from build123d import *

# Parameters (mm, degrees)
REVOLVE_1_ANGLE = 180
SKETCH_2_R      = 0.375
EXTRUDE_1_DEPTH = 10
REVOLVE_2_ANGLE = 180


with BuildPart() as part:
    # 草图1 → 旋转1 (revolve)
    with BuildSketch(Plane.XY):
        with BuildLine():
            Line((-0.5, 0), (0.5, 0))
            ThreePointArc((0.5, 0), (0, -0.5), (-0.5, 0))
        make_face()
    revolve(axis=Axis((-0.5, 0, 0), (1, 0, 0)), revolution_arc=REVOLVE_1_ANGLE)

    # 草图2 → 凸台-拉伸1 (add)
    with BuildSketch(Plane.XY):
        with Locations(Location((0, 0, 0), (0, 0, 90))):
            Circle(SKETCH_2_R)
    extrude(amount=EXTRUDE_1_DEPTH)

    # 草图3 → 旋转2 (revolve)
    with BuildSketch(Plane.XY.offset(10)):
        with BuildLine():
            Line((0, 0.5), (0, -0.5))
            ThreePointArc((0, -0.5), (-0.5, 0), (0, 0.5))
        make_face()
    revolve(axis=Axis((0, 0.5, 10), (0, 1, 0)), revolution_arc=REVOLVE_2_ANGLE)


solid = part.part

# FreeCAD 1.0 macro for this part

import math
import FreeCAD as App
import Part
import Sketcher
from FreeCAD import Vector

doc = App.newDocument("Part")
params = doc.addObject("Spreadsheet::Sheet", "Params")
for row, (alias, value) in enumerate([
    ("sketch1_radius", "0.5 mm"),
    ("revolution_angle", "180 deg"),
    ("sketch2_diameter", "0.75 mm"),
    ("pad1_length", "10 mm"),
    ("sketch3_radius", "0.5 mm"),
    ("revolution2_angle", "180 deg"),
], start=1):
    params.set(f"A{row}", alias)
    params.set(f"B{row}", "=" + value)
    params.setAlias(f"B{row}", alias)

body = doc.addObject("PartDesign::Body", "Body")

# Sketch on XY plane
sketch1 = doc.addObject("Sketcher::SketchObject", "Sketch")
body.addObject(sketch1)
sketch1.AttachmentSupport = (doc.XY_Plane, [""])
sketch1.MapMode = "FlatFace"
sketch1.addGeometry([
    Part.LineSegment(Vector(0.5, 0, 0), Vector(-0.5, 0, 0)),
    Part.ArcOfCircle(Part.Circle(Vector(0, 0, 0), Vector(0, 0, 1), 0.5), math.radians(180), math.radians(360)),
], False)
sketch1.addConstraint([
    Sketcher.Constraint("Coincident", 0, 1, 1, 2),
    Sketcher.Constraint("Coincident", 1, 1, 0, 2),
    Sketcher.Constraint("Horizontal", 0),
    Sketcher.Constraint("Coincident", 1, 3, -1, 1),
    Sketcher.Constraint("PointOnObject", 0, 1, -1),
    Sketcher.Constraint("Radius", 1, 0.5),
])
sketch1.setExpression("Constraints[5]", "Params.sketch1_radius")
revolution = doc.addObject("PartDesign::Revolution", "Revolution")
body.addObject(revolution)
revolution.Profile = sketch1
revolution.ReferenceAxis = (sketch1, ["H_Axis"])
revolution.setExpression("Angle", "Params.revolution_angle")

# Sketch on XY plane
sketch2 = doc.addObject("Sketcher::SketchObject", "Sketch001")
body.addObject(sketch2)
sketch2.AttachmentSupport = (doc.XY_Plane, [""])
sketch2.MapMode = "FlatFace"
sketch2.addGeometry(Part.Circle(Vector(0, 0, 0), Vector(0, 0, 1), 0.38), False)
sketch2.addConstraint([
    Sketcher.Constraint("Coincident", 0, 3, -1, 1),
    Sketcher.Constraint("Diameter", 0, 0.75),
])
sketch2.setExpression("Constraints[1]", "Params.sketch2_diameter")
pad1 = doc.addObject("PartDesign::Pad", "Pad")
body.addObject(pad1)
pad1.Profile = sketch2
pad1.setExpression("Length", "Params.pad1_length")

# Sketch on XY plane
sketch3 = doc.addObject("Sketcher::SketchObject", "Sketch002")
body.addObject(sketch3)
sketch3.AttachmentSupport = (doc.XY_Plane, [""])
sketch3.MapMode = "FlatFace"
sketch3.AttachmentOffset = App.Placement(Vector(0, 0, 10), App.Rotation())
sketch3.addGeometry([
    Part.LineSegment(Vector(0, -0.5, 0), Vector(0, 0.5, 0)),
    Part.ArcOfCircle(Part.Circle(Vector(0, 0, 0), Vector(0, 0, 1), 0.5), math.radians(90), math.radians(270)),
], False)
sketch3.addConstraint([
    Sketcher.Constraint("Coincident", 0, 1, 1, 2),
    Sketcher.Constraint("Coincident", 1, 1, 0, 2),
    Sketcher.Constraint("Vertical", 0),
    Sketcher.Constraint("Coincident", 1, 3, -1, 1),
    Sketcher.Constraint("PointOnObject", 0, 1, -2),
    Sketcher.Constraint("Radius", 1, 0.5),
])
sketch3.setExpression("Constraints[5]", "Params.sketch3_radius")
revolution2 = doc.addObject("PartDesign::Revolution", "Revolution001")
body.addObject(revolution2)
revolution2.Profile = sketch3
revolution2.ReferenceAxis = (sketch3, ["V_Axis"])
revolution2.setExpression("Angle", "Params.revolution2_angle")

doc.recompute()
